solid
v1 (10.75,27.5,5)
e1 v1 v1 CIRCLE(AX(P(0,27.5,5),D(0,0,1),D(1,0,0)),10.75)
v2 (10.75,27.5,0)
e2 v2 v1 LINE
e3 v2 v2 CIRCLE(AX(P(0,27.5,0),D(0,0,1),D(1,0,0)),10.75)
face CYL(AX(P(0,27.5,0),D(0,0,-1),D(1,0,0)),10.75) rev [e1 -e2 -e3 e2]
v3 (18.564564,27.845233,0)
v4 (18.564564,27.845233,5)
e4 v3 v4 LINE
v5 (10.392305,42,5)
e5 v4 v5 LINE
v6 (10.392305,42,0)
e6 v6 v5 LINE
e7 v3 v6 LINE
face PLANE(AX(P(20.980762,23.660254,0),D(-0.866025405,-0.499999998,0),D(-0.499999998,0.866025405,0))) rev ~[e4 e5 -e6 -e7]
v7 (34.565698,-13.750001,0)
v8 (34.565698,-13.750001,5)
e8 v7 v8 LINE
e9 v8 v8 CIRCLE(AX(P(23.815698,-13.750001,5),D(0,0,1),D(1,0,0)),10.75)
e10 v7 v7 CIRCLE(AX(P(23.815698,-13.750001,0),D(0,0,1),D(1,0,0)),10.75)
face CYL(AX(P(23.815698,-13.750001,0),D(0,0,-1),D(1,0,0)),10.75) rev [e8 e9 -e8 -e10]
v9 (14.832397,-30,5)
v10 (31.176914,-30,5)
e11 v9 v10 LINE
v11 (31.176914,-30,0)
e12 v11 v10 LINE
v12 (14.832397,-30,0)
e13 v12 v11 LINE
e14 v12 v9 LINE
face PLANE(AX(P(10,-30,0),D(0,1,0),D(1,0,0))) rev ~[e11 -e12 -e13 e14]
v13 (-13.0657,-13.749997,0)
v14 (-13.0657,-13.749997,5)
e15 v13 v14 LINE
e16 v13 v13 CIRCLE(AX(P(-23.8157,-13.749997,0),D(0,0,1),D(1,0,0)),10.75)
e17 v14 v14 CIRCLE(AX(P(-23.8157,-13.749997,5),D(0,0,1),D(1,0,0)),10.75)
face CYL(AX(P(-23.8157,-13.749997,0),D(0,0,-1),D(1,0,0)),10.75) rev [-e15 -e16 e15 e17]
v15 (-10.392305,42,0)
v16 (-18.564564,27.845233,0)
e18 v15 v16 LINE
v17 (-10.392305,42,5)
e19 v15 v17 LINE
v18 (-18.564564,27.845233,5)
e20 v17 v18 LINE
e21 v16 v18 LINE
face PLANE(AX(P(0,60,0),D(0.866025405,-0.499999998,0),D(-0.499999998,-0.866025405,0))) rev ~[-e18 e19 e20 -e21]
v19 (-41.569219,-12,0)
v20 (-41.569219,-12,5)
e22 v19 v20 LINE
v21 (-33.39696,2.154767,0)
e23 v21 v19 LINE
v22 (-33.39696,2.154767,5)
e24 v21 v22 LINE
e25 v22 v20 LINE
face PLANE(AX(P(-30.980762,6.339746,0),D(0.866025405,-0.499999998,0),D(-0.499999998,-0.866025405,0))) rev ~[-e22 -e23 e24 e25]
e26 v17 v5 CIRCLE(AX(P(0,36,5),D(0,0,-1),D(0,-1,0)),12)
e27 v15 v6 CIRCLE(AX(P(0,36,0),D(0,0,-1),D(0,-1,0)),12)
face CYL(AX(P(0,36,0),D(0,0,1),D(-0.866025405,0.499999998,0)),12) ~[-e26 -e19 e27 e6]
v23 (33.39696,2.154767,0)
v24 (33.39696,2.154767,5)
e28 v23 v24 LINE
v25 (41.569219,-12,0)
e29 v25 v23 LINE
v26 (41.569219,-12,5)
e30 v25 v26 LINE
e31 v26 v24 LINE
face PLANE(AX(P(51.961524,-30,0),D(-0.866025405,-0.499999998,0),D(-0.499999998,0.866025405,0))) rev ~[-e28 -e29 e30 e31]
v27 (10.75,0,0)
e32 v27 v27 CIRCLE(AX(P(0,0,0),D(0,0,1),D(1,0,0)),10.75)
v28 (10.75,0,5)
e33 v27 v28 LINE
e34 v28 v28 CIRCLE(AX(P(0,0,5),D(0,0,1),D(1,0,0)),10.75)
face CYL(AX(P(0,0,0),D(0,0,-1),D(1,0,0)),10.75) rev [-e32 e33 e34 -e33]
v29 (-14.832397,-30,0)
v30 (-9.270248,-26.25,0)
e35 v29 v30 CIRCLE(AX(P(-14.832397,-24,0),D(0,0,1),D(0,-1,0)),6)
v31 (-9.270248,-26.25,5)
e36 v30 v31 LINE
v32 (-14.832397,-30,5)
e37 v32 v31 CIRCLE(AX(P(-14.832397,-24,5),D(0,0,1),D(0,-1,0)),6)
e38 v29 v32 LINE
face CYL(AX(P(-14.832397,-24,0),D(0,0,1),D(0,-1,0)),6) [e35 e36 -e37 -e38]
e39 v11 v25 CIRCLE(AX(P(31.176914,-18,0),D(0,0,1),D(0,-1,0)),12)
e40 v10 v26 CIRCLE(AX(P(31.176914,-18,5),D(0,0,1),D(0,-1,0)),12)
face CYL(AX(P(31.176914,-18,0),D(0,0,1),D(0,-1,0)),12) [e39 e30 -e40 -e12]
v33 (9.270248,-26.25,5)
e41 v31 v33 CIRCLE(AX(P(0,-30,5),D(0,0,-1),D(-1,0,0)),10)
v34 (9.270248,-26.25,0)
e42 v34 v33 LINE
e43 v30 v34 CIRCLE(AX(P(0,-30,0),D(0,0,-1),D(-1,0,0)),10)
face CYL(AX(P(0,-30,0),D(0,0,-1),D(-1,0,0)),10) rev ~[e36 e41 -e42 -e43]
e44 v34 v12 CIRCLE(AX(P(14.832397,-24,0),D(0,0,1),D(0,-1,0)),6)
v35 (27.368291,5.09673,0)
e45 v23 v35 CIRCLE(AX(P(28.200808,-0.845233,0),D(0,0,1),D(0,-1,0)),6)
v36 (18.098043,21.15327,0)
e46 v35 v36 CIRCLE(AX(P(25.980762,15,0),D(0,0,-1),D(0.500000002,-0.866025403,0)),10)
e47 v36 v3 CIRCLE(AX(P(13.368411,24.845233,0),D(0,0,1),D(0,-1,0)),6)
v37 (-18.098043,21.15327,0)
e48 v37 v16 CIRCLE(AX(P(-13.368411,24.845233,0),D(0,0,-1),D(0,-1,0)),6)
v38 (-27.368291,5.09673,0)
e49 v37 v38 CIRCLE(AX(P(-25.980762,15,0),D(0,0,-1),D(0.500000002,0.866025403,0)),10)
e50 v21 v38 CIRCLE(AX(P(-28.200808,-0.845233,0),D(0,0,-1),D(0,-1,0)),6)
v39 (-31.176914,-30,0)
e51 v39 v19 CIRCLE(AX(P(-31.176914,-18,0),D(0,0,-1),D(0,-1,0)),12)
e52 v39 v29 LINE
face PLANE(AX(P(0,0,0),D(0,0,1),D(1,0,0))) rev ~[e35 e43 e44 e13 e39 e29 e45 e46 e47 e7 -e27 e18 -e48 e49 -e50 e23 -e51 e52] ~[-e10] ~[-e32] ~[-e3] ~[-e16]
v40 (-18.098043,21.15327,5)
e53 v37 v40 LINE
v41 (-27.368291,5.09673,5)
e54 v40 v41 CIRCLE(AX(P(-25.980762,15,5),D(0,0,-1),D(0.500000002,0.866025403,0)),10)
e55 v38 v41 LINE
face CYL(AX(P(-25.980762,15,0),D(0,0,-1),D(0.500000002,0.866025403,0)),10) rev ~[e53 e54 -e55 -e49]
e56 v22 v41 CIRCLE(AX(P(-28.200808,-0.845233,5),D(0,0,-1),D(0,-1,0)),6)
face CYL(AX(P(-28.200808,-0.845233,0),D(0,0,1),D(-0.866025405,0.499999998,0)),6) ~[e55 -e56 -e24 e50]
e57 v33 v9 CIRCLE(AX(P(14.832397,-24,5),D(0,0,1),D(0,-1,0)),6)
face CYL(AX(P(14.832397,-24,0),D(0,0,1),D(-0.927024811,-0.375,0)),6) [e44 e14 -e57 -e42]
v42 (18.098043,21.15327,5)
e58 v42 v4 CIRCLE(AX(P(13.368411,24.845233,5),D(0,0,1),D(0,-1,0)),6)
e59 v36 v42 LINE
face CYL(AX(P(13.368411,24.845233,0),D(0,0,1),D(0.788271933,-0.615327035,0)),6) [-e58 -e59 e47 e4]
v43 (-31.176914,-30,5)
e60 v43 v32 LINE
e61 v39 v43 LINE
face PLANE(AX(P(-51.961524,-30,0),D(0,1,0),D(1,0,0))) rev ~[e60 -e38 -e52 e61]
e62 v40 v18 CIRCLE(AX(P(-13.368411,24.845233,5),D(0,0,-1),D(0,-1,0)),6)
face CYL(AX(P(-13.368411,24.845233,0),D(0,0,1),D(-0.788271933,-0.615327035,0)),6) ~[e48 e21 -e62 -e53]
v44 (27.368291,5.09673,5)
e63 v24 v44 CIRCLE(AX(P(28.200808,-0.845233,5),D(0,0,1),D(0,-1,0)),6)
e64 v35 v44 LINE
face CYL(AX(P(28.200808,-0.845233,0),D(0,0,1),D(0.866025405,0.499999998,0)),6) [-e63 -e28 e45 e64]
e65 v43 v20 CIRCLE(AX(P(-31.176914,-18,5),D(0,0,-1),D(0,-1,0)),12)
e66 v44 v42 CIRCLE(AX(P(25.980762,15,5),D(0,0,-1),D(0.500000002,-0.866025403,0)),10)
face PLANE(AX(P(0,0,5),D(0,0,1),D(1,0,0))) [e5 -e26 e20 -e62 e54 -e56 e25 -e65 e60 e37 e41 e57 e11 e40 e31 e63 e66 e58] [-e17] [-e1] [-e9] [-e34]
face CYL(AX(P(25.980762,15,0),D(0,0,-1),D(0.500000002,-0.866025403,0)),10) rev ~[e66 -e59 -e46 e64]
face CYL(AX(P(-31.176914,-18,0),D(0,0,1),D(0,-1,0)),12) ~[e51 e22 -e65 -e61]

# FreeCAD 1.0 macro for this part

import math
import FreeCAD as App
import Part
import Sketcher
from FreeCAD import Vector
Q = App.Units.Quantity


def edges_at(feature, points):
    """Names of the edges that pass closest to the given points."""
    edges = feature.Shape.Edges
    near = lambda p: min(range(len(edges)), key=lambda i: edges[i].distToShape(Part.Vertex(*p))[0])
    return sorted({f"Edge{near(p) + 1}" for p in points})

doc = App.newDocument("Part")
body = doc.addObject("PartDesign::Body", "Body")

# Sketch on XY plane
sketch1 = body.newObject("Sketcher::SketchObject", "Sketch")
sketch1.AttachmentSupport = (doc.getObject("XY_Plane"), [""])
sketch1.MapMode = "FlatFace"
sketch1.addGeometry([
    Part.ArcOfCircle(Part.Circle(Vector(0, -30, 0), Vector(0, 0, 1), 10), math.radians(0), math.radians(180)),  # 0
    Part.LineSegment(Vector(10, -30, 0), Vector(52, -30, 0)),  # 1
    Part.LineSegment(Vector(52, -30, 0), Vector(31, 6, 0)),  # 2
    Part.ArcOfCircle(Part.Circle(Vector(26, 15, 0), Vector(0, 0, 1), 10), math.radians(120), math.radians(300)),  # 3
    Part.LineSegment(Vector(21, 24, 0), Vector(0, 60, 0)),  # 4
    Part.LineSegment(Vector(0, 60, 0), Vector(-21, 24, 0)),  # 5
    Part.ArcOfCircle(Part.Circle(Vector(-26, 15, 0), Vector(0, 0, 1), 10), math.radians(-120), math.radians(60)),  # 6
    Part.LineSegment(Vector(-31, 6, 0), Vector(-52, -30, 0)),  # 7
    Part.LineSegment(Vector(-52, -30, 0), Vector(-10, -30, 0)),  # 8
    Part.Circle(Vector(-24, -14, 0), Vector(0, 0, 1), 11),  # 9
    Part.Circle(Vector(24, -14, 0), Vector(0, 0, 1), 11),  # 10
    Part.Circle(Vector(0, 0, 0), Vector(0, 0, 1), 11),  # 11
    Part.Circle(Vector(0, 28, 0), Vector(0, 0, 1), 11),  # 12
], False)
sketch1.addConstraint([
    Sketcher.Constraint("Coincident", 0, 1, 1, 1),
    Sketcher.Constraint("Coincident", 1, 2, 2, 1),
    Sketcher.Constraint("Coincident", 2, 2, 3, 2),
    Sketcher.Constraint("Coincident", 3, 1, 4, 1),
    Sketcher.Constraint("Coincident", 4, 2, 5, 1),
    Sketcher.Constraint("Coincident", 5, 2, 6, 2),
    Sketcher.Constraint("Coincident", 6, 1, 7, 1),
    Sketcher.Constraint("Coincident", 7, 2, 8, 1),
    Sketcher.Constraint("Coincident", 8, 2, 0, 2),
    Sketcher.Constraint("Horizontal", 1),
    Sketcher.Constraint("Horizontal", 8),
    Sketcher.Constraint("Coincident", 11, 3, -1, 1),
    Sketcher.Constraint("Equal", 0, 3),
    Sketcher.Constraint("Equal", 3, 6),
    Sketcher.Constraint("Equal", 9, 10),
    Sketcher.Constraint("Equal", 10, 11),
    Sketcher.Constraint("Equal", 11, 12),
    Sketcher.Constraint("Symmetric", 3, 3, 6, 3, -2),
    Sketcher.Constraint("Symmetric", 9, 3, 10, 3, -2),
    Sketcher.Constraint("Symmetric", 1, 2, 7, 2, -2),
    Sketcher.Constraint("PointOnObject", 0, 3, -2),
    Sketcher.Constraint("PointOnObject", 12, 3, -2),
    Sketcher.Constraint("PointOnObject", 4, 2, -2),
    Sketcher.Constraint("Parallel", 2, 4),
    Sketcher.Constraint("Parallel", 5, 7),
    Sketcher.Constraint("Horizontal", 3, 1, 5, 2),
    Sketcher.Constraint("Equal", 2, 4),
    Sketcher.Constraint("Radius", 0, 10.0),
    Sketcher.Constraint("Diameter", 9, 21.5),
    Sketcher.Constraint("Angle", 2, Q("120 deg")),
    Sketcher.Constraint("DistanceY", 0, 3, -1, 1, 30.0),
    Sketcher.Constraint("DistanceY", -1, 1, 3, 3, 15.0),
    Sketcher.Constraint("DistanceY", 0, 1, -1, 1, 30.0),
    Sketcher.Constraint("DistanceY", -1, 1, 4, 2, 60.0),
    Sketcher.Constraint("DistanceX", 3, 3, 2, 2, 5.0),
    Sketcher.Constraint("DistanceY", -1, 1, 12, 3, 27.5),
    Sketcher.Constraint("DistanceY", 10, 3, -1, 1, 13.750001),
    Sketcher.Constraint("DistanceX", 9, 3, -1, 1, 23.8157),
])
pad1 = body.newObject("PartDesign::Pad", "Pad")
pad1.Profile = sketch1
pad1.Length = 5
doc.recompute()

fillet = body.newObject("PartDesign::Fillet", "Fillet")
fillet.Base = (pad1, edges_at(pad1, [(-51.962, -30, 2.5), (51.962, -30, 2.5), (0, 60, 2.5)]))
fillet.Radius = 12
doc.recompute()

fillet2 = body.newObject("PartDesign::Fillet", "Fillet001")
fillet2.Base = (fillet, edges_at(fillet, [
    (30.981, 6.34, 2.5),
    (20.981, 23.66, 2.5),
    (-20.981, 23.66, 2.5),
    (-30.981, 6.34, 2.5),
    (-10, -30, 2.5),
    (10, -30, 2.5),
]))
fillet2.Radius = 6

doc.recompute()
